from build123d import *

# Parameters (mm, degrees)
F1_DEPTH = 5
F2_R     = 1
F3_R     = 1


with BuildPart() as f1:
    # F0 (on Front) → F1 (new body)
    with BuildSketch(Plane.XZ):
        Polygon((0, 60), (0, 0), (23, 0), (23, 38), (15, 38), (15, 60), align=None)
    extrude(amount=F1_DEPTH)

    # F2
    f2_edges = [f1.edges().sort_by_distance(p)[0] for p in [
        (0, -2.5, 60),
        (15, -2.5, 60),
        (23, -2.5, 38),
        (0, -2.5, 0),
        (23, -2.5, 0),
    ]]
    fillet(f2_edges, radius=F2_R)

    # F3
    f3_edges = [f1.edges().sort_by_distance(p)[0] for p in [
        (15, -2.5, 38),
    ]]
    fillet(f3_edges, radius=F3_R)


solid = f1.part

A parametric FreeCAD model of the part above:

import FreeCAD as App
import Part
import Sketcher

V = App.Vector
Q = App.Units.Quantity


def edges_at(feature, points):
    """Names of the edges that pass closest to the given points."""
    edges = feature.Shape.Edges
    near = lambda p: min(range(len(edges)), key=lambda i: edges[i].distToShape(Part.Vertex(*p))[0])
    return sorted({f"Edge{near(p) + 1}" for p in points})

doc = App.newDocument("Part")
params = doc.addObject("Spreadsheet::Sheet", "Params")
for row, (alias, value) in enumerate([
    ("sketch1_width", "23 mm"),
    ("sketch1_width2", "8 mm"),
    ("sketch1_height", "60 mm"),
    ("sketch1_height2", "38 mm"),
    ("pad1_length", "5 mm"),
    ("fillet_radius", "1 mm"),
    ("fillet2_radius", "1 mm"),
], start=1):
    params.set(f"A{row}", alias)
    params.set(f"B{row}", "=" + value)
    params.setAlias(f"B{row}", alias)

body = doc.addObject("PartDesign::Body", "Body")

sketch1 = doc.addObject("Sketcher::SketchObject", "Sketch")
body.addObject(sketch1)
sketch1.AttachmentSupport = (doc.XZ_Plane, [""])
sketch1.MapMode = "FlatFace"
sketch1.addGeometry([
    Part.LineSegment(V(0, 60, 0), V(0, 0, 0)),
    Part.LineSegment(V(0, 0, 0), V(23, 0, 0)),
    Part.LineSegment(V(23, 0, 0), V(23, 38, 0)),
    Part.LineSegment(V(23, 38, 0), V(15, 38, 0)),
    Part.LineSegment(V(15, 38, 0), V(15, 60, 0)),
    Part.LineSegment(V(15, 60, 0), V(0, 60, 0)),
], False)
sketch1.addConstraint([
    Sketcher.Constraint("Coincident", 0, 2, 1, 1),
    Sketcher.Constraint("Coincident", 1, 2, 2, 1),
    Sketcher.Constraint("Coincident", 2, 2, 3, 1),
    Sketcher.Constraint("Coincident", 3, 2, 4, 1),
    Sketcher.Constraint("Coincident", 4, 2, 5, 1),
    Sketcher.Constraint("Coincident", 5, 2, 0, 1),
    Sketcher.Constraint("Vertical", 0),
    Sketcher.Constraint("Horizontal", 1),
    Sketcher.Constraint("Vertical", 2),
    Sketcher.Constraint("Horizontal", 3),
    Sketcher.Constraint("Vertical", 4),
    Sketcher.Constraint("Horizontal", 5),
    Sketcher.Constraint("Coincident", 0, 2, -1, 1),
    Sketcher.Constraint("DistanceX", 1, 1, 1, 2, Q("23 mm")),
    Sketcher.Constraint("DistanceX", 3, 2, 3, 1, Q("8 mm")),
    Sketcher.Constraint("DistanceY", 0, 2, 0, 1, Q("60 mm")),
    Sketcher.Constraint("DistanceY", 2, 1, 2, 2, Q("38 mm")),
])
sketch1.setExpression("Constraints[13]", "Params.sketch1_width")
sketch1.setExpression("Constraints[14]", "Params.sketch1_width2")
sketch1.setExpression("Constraints[15]", "Params.sketch1_height")
sketch1.setExpression("Constraints[16]", "Params.sketch1_height2")
pad1 = doc.addObject("PartDesign::Pad", "Pad")
body.addObject(pad1)
pad1.Profile = sketch1
pad1.setExpression("Length", "Params.pad1_length")
doc.recompute()

fillet = doc.addObject("PartDesign::Fillet", "Fillet")
body.addObject(fillet)
fillet.Base = (pad1, edges_at(pad1, [
    (0, -2.5, 60),
    (15, -2.5, 60),
    (23, -2.5, 38),
    (0, -2.5, 0),
    (23, -2.5, 0),
]))
fillet.setExpression("Radius", "Params.fillet_radius")
doc.recompute()

fillet2 = doc.addObject("PartDesign::Fillet", "Fillet001")
body.addObject(fillet2)
fillet2.Base = (fillet, edges_at(fillet, [(15, -2.5, 38)]))
fillet2.setExpression("Radius", "Params.fillet2_radius")

doc.recompute()
